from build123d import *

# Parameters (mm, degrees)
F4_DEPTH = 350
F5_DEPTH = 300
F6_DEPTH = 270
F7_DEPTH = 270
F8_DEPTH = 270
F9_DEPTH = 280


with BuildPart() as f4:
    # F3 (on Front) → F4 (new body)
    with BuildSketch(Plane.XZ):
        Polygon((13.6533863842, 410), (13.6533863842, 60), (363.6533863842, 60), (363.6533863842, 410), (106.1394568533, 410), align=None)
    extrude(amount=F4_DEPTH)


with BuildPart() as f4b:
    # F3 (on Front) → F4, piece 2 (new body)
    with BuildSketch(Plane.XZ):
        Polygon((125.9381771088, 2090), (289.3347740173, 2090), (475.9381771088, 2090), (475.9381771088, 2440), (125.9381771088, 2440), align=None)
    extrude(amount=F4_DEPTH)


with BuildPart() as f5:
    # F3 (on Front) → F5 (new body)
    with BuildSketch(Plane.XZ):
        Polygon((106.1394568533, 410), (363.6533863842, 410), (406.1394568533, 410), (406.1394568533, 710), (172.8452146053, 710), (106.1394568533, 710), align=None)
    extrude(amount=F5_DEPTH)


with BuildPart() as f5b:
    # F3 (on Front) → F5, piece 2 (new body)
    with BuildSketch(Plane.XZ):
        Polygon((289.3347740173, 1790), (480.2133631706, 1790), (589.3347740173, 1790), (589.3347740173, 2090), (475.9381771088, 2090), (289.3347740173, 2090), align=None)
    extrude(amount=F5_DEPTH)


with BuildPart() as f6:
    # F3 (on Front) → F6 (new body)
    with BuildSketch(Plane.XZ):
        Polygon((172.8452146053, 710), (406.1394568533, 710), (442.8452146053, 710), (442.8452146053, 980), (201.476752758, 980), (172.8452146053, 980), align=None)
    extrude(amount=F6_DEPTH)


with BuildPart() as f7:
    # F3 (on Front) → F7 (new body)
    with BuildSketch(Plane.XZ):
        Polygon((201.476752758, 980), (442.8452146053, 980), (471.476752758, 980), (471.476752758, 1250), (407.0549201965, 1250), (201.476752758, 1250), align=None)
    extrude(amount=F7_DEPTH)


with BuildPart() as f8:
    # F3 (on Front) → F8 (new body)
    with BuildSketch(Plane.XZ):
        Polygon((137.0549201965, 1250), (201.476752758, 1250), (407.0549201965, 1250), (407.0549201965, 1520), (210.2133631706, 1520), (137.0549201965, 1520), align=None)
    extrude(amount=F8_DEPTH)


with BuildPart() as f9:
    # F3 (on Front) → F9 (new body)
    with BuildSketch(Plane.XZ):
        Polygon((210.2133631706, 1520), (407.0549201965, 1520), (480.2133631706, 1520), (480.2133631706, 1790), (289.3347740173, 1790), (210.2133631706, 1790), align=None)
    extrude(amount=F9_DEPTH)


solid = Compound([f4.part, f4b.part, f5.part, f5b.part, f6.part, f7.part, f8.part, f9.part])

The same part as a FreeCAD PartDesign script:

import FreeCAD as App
import Part
import Sketcher
from FreeCAD import Vector


def add_polygon(sketch, points):
    """Adds a closed chain of lines whose ends are joined by coincident constraints."""
    first, n = sketch.GeometryCount, len(points)
    for a, b in zip(points, points[1:] + points[:1]):
        sketch.addGeometry(Part.LineSegment(App.Vector(*a, 0), App.Vector(*b, 0)), False)
    for i in range(n):
        sketch.addConstraint(Sketcher.Constraint("Coincident", first + i, 2, first + (i + 1) % n, 1))

doc = App.newDocument("Part")
body = doc.addObject("PartDesign::Body", "Body")

# Sketch on XZ plane
sketch1 = body.newObject("Sketcher::SketchObject", "Sketch")
sketch1.AttachmentSupport = (doc.getObject("XZ_Plane"), [""])
sketch1.MapMode = "FlatFace"
add_polygon(sketch1, [(14, 410), (14, 60), (364, 60), (364, 410)])  # lines 0-3
sketch1.addConstraint(Sketcher.Constraint("Vertical", 0))
sketch1.addConstraint(Sketcher.Constraint("Horizontal", 1))
sketch1.addConstraint(Sketcher.Constraint("Vertical", 2))
sketch1.addConstraint(Sketcher.Constraint("Horizontal", 3))
sketch1.addConstraint(Sketcher.Constraint("Equal", 3, 0))
sketch1.addConstraint(Sketcher.Constraint("DistanceX", 1, 1, 1, 2, 350.0))
sketch1.addConstraint(Sketcher.Constraint("DistanceY", -1, 1, 0, 2, 60.0))
sketch1.addConstraint(Sketcher.Constraint("DistanceX", -1, 1, 0, 2, 13.653386))
pad1 = body.newObject("PartDesign::Pad", "Pad")
pad1.Profile = sketch1
pad1.Length = 350
body2 = doc.addObject("PartDesign::Body", "Body001")

# Sketch on XZ plane
sketch2 = body2.newObject("Sketcher::SketchObject", "Sketch001")
sketch2.AttachmentSupport = (doc.getObject("XZ_Plane001"), [""])
sketch2.MapMode = "FlatFace"
add_polygon(sketch2, [(126, 2090), (476, 2090), (476, 2440), (126, 2440)])  # lines 0-3
sketch2.addConstraint(Sketcher.Constraint("Horizontal", 0))
sketch2.addConstraint(Sketcher.Constraint("Vertical", 1))
sketch2.addConstraint(Sketcher.Constraint("Horizontal", 2))
sketch2.addConstraint(Sketcher.Constraint("Vertical", 3))
sketch2.addConstraint(Sketcher.Constraint("Equal", 2, 1))
sketch2.addConstraint(Sketcher.Constraint("DistanceX", 0, 1, 0, 2, 350.0))
sketch2.addConstraint(Sketcher.Constraint("DistanceY", -1, 1, 0, 2, 2090.0))
sketch2.addConstraint(Sketcher.Constraint("DistanceX", -1, 1, 0, 2, 475.938177))
pad2 = body2.newObject("PartDesign::Pad", "Pad001")
pad2.Profile = sketch2
pad2.Length = 350
body3 = doc.addObject("PartDesign::Body", "Body002")

# Sketch on XZ plane
sketch3 = body3.newObject("Sketcher::SketchObject", "Sketch002")
sketch3.AttachmentSupport = (doc.getObject("XZ_Plane002"), [""])
sketch3.MapMode = "FlatFace"
add_polygon(sketch3, [(106, 410), (406, 410), (406, 710), (106, 710)])  # lines 0-3
sketch3.addConstraint(Sketcher.Constraint("Horizontal", 0))
sketch3.addConstraint(Sketcher.Constraint("Vertical", 1))
sketch3.addConstraint(Sketcher.Constraint("Horizontal", 2))
sketch3.addConstraint(Sketcher.Constraint("Vertical", 3))
sketch3.addConstraint(Sketcher.Constraint("Equal", 2, 1))
sketch3.addConstraint(Sketcher.Constraint("DistanceX", 0, 1, 0, 2, 300.0))
sketch3.addConstraint(Sketcher.Constraint("DistanceY", -1, 1, 0, 2, 410.0))
sketch3.addConstraint(Sketcher.Constraint("DistanceX", -1, 1, 0, 2, 406.139457))
pad3 = body3.newObject("PartDesign::Pad", "Pad002")
pad3.Profile = sketch3
pad3.Length = 300
body4 = doc.addObject("PartDesign::Body", "Body003")

# Sketch on XZ plane
sketch4 = body4.newObject("Sketcher::SketchObject", "Sketch003")
sketch4.AttachmentSupport = (doc.getObject("XZ_Plane003"), [""])
sketch4.MapMode = "FlatFace"
add_polygon(sketch4, [(289, 1790), (589, 1790), (589, 2090), (289, 2090)])  # lines 0-3
sketch4.addConstraint(Sketcher.Constraint("Horizontal", 0))
sketch4.addConstraint(Sketcher.Constraint("Vertical", 1))
sketch4.addConstraint(Sketcher.Constraint("Horizontal", 2))
sketch4.addConstraint(Sketcher.Constraint("Vertical", 3))
sketch4.addConstraint(Sketcher.Constraint("Equal", 2, 1))
sketch4.addConstraint(Sketcher.Constraint("DistanceX", 0, 1, 0, 2, 300.0))
sketch4.addConstraint(Sketcher.Constraint("DistanceY", -1, 1, 0, 2, 1790.0))
sketch4.addConstraint(Sketcher.Constraint("DistanceX", -1, 1, 0, 2, 589.334774))
pad4 = body4.newObject("PartDesign::Pad", "Pad003")
pad4.Profile = sketch4
pad4.Length = 300
body5 = doc.addObject("PartDesign::Body", "Body004")

# Sketch on XZ plane
sketch5 = body5.newObject("Sketcher::SketchObject", "Sketch004")
sketch5.AttachmentSupport = (doc.getObject("XZ_Plane004"), [""])
sketch5.MapMode = "FlatFace"
add_polygon(sketch5, [(173, 710), (443, 710), (443, 980), (173, 980)])  # lines 0-3
sketch5.addConstraint(Sketcher.Constraint("Horizontal", 0))
sketch5.addConstraint(Sketcher.Constraint("Vertical", 1))
sketch5.addConstraint(Sketcher.Constraint("Horizontal", 2))
sketch5.addConstraint(Sketcher.Constraint("Vertical", 3))
sketch5.addConstraint(Sketcher.Constraint("Equal", 2, 1))
sketch5.addConstraint(Sketcher.Constraint("DistanceX", 0, 1, 0, 2, 270.0))
sketch5.addConstraint(Sketcher.Constraint("DistanceY", -1, 1, 0, 2, 710.0))
sketch5.addConstraint(Sketcher.Constraint("DistanceX", -1, 1, 0, 2, 442.845215))
pad5 = body5.newObject("PartDesign::Pad", "Pad004")
pad5.Profile = sketch5
pad5.Length = 270
body6 = doc.addObject("PartDesign::Body", "Body005")

# Sketch on XZ plane
sketch6 = body6.newObject("Sketcher::SketchObject", "Sketch005")
sketch6.AttachmentSupport = (doc.getObject("XZ_Plane005"), [""])
sketch6.MapMode = "FlatFace"
add_polygon(sketch6, [(201, 980), (471, 980), (471, 1250), (201, 1250)])  # lines 0-3
sketch6.addConstraint(Sketcher.Constraint("Horizontal", 0))
sketch6.addConstraint(Sketcher.Constraint("Vertical", 1))
sketch6.addConstraint(Sketcher.Constraint("Horizontal", 2))
sketch6.addConstraint(Sketcher.Constraint("Vertical", 3))
sketch6.addConstraint(Sketcher.Constraint("Equal", 2, 1))
sketch6.addConstraint(Sketcher.Constraint("DistanceX", 0, 1, 0, 2, 270.0))
sketch6.addConstraint(Sketcher.Constraint("DistanceY", -1, 1, 0, 2, 980.0))
sketch6.addConstraint(Sketcher.Constraint("DistanceX", -1, 1, 0, 2, 471.476753))
pad6 = body6.newObject("PartDesign::Pad", "Pad005")
pad6.Profile = sketch6
pad6.Length = 270
body7 = doc.addObject("PartDesign::Body", "Body006")

# Sketch on XZ plane
sketch7 = body7.newObject("Sketcher::SketchObject", "Sketch006")
sketch7.AttachmentSupport = (doc.getObject("XZ_Plane006"), [""])
sketch7.MapMode = "FlatFace"
add_polygon(sketch7, [(137, 1250), (407, 1250), (407, 1520), (137, 1520)])  # lines 0-3
sketch7.addConstraint(Sketcher.Constraint("Horizontal", 0))
sketch7.addConstraint(Sketcher.Constraint("Vertical", 1))
sketch7.addConstraint(Sketcher.Constraint("Horizontal", 2))
sketch7.addConstraint(Sketcher.Constraint("Vertical", 3))
sketch7.addConstraint(Sketcher.Constraint("Equal", 2, 1))
sketch7.addConstraint(Sketcher.Constraint("DistanceX", 0, 1, 0, 2, 270.0))
sketch7.addConstraint(Sketcher.Constraint("DistanceY", -1, 1, 0, 2, 1250.0))
sketch7.addConstraint(Sketcher.Constraint("DistanceX", -1, 1, 0, 2, 407.05492))
pad7 = body7.newObject("PartDesign::Pad", "Pad006")
pad7.Profile = sketch7
pad7.Length = 270
body8 = doc.addObject("PartDesign::Body", "Body007")

# Sketch on XZ plane
sketch8 = body8.newObject("Sketcher::SketchObject", "Sketch007")
sketch8.AttachmentSupport = (doc.getObject("XZ_Plane007"), [""])
sketch8.MapMode = "FlatFace"
add_polygon(sketch8, [(210, 1520), (480, 1520), (480, 1790), (210, 1790)])  # lines 0-3
sketch8.addConstraint(Sketcher.Constraint("Horizontal", 0))
sketch8.addConstraint(Sketcher.Constraint("Vertical", 1))
sketch8.addConstraint(Sketcher.Constraint("Horizontal", 2))
sketch8.addConstraint(Sketcher.Constraint("Vertical", 3))
sketch8.addConstraint(Sketcher.Constraint("Equal", 2, 1))
sketch8.addConstraint(Sketcher.Constraint("DistanceX", 0, 1, 0, 2, 270.0))
sketch8.addConstraint(Sketcher.Constraint("DistanceY", -1, 1, 0, 2, 1520.0))
sketch8.addConstraint(Sketcher.Constraint("DistanceX", -1, 1, 0, 2, 480.213363))
pad8 = body8.newObject("PartDesign::Pad", "Pad007")
pad8.Profile = sketch8
pad8.Length = 280

doc.recompute()
